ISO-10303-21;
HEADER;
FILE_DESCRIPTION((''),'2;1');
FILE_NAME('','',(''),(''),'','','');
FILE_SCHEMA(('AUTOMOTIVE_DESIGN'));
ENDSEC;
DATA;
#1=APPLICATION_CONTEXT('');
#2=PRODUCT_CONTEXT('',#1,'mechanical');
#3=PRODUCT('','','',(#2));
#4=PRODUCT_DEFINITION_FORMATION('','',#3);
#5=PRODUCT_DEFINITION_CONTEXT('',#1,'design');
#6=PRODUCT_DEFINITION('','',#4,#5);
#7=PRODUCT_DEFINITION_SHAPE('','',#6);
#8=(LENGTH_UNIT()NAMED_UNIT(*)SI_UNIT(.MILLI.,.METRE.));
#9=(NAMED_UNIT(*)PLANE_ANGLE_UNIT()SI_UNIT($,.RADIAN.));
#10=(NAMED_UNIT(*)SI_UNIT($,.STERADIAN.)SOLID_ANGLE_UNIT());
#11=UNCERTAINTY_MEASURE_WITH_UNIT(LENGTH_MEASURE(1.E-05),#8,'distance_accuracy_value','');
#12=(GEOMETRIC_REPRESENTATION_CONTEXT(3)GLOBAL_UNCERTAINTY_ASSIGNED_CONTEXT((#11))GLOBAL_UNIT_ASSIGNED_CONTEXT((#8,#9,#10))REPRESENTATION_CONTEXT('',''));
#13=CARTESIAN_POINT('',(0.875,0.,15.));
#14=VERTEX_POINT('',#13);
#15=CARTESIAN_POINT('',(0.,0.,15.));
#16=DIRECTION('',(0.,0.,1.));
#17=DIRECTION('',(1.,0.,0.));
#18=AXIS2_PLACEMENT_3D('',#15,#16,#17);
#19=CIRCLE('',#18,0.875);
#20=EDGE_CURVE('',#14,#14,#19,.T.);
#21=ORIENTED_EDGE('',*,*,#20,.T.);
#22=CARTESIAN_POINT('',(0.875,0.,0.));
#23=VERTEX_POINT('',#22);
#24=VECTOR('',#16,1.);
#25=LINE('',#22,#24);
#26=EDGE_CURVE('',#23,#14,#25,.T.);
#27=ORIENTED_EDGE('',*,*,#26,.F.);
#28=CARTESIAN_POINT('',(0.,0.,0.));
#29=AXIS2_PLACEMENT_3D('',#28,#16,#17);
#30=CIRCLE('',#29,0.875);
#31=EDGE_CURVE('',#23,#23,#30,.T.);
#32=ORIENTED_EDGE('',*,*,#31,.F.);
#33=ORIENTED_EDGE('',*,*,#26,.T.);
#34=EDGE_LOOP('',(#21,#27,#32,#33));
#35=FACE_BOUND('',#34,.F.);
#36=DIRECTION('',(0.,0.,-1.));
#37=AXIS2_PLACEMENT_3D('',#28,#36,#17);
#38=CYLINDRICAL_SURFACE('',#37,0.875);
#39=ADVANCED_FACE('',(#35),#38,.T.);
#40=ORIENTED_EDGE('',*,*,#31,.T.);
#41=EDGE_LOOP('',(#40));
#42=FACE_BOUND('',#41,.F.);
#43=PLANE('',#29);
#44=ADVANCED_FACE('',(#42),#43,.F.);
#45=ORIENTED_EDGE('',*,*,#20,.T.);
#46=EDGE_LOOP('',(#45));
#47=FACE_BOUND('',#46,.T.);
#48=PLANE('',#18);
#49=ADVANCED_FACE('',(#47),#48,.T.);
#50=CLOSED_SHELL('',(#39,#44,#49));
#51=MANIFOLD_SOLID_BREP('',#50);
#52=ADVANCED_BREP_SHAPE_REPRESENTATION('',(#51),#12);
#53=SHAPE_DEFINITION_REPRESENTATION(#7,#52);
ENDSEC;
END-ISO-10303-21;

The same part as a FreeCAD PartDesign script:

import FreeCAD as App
import Part
import Sketcher

doc = App.newDocument("Part")
params = doc.addObject("Spreadsheet::Sheet", "Params")
for row, (alias, value) in enumerate([
    ("sketch1_diameter", "1.75 mm"),
    ("pad1_length", "15 mm"),
], start=1):
    params.set(f"A{row}", alias)
    params.set(f"B{row}", "=" + value)
    params.setAlias(f"B{row}", alias)

body = doc.addObject("PartDesign::Body", "Body")

sketch1 = doc.addObject("Sketcher::SketchObject", "Sketch")
body.addObject(sketch1)
sketch1.AttachmentSupport = (doc.XY_Plane, [""])
sketch1.MapMode = "FlatFace"
sketch1.addGeometry(Part.Circle(App.Vector(0, 0, 0), App.Vector(0, 0, 1), 0.9), False)
sketch1.addConstraint([
    Sketcher.Constraint("Coincident", 0, 3, -1, 1),
    Sketcher.Constraint("Diameter", 0, 1.75),
])
sketch1.setExpression("Constraints[1]", "Params.sketch1_diameter")
pad1 = doc.addObject("PartDesign::Pad", "Pad")
body.addObject(pad1)
pad1.Profile = sketch1
pad1.setExpression("Length", "Params.pad1_length")

doc.recompute()
